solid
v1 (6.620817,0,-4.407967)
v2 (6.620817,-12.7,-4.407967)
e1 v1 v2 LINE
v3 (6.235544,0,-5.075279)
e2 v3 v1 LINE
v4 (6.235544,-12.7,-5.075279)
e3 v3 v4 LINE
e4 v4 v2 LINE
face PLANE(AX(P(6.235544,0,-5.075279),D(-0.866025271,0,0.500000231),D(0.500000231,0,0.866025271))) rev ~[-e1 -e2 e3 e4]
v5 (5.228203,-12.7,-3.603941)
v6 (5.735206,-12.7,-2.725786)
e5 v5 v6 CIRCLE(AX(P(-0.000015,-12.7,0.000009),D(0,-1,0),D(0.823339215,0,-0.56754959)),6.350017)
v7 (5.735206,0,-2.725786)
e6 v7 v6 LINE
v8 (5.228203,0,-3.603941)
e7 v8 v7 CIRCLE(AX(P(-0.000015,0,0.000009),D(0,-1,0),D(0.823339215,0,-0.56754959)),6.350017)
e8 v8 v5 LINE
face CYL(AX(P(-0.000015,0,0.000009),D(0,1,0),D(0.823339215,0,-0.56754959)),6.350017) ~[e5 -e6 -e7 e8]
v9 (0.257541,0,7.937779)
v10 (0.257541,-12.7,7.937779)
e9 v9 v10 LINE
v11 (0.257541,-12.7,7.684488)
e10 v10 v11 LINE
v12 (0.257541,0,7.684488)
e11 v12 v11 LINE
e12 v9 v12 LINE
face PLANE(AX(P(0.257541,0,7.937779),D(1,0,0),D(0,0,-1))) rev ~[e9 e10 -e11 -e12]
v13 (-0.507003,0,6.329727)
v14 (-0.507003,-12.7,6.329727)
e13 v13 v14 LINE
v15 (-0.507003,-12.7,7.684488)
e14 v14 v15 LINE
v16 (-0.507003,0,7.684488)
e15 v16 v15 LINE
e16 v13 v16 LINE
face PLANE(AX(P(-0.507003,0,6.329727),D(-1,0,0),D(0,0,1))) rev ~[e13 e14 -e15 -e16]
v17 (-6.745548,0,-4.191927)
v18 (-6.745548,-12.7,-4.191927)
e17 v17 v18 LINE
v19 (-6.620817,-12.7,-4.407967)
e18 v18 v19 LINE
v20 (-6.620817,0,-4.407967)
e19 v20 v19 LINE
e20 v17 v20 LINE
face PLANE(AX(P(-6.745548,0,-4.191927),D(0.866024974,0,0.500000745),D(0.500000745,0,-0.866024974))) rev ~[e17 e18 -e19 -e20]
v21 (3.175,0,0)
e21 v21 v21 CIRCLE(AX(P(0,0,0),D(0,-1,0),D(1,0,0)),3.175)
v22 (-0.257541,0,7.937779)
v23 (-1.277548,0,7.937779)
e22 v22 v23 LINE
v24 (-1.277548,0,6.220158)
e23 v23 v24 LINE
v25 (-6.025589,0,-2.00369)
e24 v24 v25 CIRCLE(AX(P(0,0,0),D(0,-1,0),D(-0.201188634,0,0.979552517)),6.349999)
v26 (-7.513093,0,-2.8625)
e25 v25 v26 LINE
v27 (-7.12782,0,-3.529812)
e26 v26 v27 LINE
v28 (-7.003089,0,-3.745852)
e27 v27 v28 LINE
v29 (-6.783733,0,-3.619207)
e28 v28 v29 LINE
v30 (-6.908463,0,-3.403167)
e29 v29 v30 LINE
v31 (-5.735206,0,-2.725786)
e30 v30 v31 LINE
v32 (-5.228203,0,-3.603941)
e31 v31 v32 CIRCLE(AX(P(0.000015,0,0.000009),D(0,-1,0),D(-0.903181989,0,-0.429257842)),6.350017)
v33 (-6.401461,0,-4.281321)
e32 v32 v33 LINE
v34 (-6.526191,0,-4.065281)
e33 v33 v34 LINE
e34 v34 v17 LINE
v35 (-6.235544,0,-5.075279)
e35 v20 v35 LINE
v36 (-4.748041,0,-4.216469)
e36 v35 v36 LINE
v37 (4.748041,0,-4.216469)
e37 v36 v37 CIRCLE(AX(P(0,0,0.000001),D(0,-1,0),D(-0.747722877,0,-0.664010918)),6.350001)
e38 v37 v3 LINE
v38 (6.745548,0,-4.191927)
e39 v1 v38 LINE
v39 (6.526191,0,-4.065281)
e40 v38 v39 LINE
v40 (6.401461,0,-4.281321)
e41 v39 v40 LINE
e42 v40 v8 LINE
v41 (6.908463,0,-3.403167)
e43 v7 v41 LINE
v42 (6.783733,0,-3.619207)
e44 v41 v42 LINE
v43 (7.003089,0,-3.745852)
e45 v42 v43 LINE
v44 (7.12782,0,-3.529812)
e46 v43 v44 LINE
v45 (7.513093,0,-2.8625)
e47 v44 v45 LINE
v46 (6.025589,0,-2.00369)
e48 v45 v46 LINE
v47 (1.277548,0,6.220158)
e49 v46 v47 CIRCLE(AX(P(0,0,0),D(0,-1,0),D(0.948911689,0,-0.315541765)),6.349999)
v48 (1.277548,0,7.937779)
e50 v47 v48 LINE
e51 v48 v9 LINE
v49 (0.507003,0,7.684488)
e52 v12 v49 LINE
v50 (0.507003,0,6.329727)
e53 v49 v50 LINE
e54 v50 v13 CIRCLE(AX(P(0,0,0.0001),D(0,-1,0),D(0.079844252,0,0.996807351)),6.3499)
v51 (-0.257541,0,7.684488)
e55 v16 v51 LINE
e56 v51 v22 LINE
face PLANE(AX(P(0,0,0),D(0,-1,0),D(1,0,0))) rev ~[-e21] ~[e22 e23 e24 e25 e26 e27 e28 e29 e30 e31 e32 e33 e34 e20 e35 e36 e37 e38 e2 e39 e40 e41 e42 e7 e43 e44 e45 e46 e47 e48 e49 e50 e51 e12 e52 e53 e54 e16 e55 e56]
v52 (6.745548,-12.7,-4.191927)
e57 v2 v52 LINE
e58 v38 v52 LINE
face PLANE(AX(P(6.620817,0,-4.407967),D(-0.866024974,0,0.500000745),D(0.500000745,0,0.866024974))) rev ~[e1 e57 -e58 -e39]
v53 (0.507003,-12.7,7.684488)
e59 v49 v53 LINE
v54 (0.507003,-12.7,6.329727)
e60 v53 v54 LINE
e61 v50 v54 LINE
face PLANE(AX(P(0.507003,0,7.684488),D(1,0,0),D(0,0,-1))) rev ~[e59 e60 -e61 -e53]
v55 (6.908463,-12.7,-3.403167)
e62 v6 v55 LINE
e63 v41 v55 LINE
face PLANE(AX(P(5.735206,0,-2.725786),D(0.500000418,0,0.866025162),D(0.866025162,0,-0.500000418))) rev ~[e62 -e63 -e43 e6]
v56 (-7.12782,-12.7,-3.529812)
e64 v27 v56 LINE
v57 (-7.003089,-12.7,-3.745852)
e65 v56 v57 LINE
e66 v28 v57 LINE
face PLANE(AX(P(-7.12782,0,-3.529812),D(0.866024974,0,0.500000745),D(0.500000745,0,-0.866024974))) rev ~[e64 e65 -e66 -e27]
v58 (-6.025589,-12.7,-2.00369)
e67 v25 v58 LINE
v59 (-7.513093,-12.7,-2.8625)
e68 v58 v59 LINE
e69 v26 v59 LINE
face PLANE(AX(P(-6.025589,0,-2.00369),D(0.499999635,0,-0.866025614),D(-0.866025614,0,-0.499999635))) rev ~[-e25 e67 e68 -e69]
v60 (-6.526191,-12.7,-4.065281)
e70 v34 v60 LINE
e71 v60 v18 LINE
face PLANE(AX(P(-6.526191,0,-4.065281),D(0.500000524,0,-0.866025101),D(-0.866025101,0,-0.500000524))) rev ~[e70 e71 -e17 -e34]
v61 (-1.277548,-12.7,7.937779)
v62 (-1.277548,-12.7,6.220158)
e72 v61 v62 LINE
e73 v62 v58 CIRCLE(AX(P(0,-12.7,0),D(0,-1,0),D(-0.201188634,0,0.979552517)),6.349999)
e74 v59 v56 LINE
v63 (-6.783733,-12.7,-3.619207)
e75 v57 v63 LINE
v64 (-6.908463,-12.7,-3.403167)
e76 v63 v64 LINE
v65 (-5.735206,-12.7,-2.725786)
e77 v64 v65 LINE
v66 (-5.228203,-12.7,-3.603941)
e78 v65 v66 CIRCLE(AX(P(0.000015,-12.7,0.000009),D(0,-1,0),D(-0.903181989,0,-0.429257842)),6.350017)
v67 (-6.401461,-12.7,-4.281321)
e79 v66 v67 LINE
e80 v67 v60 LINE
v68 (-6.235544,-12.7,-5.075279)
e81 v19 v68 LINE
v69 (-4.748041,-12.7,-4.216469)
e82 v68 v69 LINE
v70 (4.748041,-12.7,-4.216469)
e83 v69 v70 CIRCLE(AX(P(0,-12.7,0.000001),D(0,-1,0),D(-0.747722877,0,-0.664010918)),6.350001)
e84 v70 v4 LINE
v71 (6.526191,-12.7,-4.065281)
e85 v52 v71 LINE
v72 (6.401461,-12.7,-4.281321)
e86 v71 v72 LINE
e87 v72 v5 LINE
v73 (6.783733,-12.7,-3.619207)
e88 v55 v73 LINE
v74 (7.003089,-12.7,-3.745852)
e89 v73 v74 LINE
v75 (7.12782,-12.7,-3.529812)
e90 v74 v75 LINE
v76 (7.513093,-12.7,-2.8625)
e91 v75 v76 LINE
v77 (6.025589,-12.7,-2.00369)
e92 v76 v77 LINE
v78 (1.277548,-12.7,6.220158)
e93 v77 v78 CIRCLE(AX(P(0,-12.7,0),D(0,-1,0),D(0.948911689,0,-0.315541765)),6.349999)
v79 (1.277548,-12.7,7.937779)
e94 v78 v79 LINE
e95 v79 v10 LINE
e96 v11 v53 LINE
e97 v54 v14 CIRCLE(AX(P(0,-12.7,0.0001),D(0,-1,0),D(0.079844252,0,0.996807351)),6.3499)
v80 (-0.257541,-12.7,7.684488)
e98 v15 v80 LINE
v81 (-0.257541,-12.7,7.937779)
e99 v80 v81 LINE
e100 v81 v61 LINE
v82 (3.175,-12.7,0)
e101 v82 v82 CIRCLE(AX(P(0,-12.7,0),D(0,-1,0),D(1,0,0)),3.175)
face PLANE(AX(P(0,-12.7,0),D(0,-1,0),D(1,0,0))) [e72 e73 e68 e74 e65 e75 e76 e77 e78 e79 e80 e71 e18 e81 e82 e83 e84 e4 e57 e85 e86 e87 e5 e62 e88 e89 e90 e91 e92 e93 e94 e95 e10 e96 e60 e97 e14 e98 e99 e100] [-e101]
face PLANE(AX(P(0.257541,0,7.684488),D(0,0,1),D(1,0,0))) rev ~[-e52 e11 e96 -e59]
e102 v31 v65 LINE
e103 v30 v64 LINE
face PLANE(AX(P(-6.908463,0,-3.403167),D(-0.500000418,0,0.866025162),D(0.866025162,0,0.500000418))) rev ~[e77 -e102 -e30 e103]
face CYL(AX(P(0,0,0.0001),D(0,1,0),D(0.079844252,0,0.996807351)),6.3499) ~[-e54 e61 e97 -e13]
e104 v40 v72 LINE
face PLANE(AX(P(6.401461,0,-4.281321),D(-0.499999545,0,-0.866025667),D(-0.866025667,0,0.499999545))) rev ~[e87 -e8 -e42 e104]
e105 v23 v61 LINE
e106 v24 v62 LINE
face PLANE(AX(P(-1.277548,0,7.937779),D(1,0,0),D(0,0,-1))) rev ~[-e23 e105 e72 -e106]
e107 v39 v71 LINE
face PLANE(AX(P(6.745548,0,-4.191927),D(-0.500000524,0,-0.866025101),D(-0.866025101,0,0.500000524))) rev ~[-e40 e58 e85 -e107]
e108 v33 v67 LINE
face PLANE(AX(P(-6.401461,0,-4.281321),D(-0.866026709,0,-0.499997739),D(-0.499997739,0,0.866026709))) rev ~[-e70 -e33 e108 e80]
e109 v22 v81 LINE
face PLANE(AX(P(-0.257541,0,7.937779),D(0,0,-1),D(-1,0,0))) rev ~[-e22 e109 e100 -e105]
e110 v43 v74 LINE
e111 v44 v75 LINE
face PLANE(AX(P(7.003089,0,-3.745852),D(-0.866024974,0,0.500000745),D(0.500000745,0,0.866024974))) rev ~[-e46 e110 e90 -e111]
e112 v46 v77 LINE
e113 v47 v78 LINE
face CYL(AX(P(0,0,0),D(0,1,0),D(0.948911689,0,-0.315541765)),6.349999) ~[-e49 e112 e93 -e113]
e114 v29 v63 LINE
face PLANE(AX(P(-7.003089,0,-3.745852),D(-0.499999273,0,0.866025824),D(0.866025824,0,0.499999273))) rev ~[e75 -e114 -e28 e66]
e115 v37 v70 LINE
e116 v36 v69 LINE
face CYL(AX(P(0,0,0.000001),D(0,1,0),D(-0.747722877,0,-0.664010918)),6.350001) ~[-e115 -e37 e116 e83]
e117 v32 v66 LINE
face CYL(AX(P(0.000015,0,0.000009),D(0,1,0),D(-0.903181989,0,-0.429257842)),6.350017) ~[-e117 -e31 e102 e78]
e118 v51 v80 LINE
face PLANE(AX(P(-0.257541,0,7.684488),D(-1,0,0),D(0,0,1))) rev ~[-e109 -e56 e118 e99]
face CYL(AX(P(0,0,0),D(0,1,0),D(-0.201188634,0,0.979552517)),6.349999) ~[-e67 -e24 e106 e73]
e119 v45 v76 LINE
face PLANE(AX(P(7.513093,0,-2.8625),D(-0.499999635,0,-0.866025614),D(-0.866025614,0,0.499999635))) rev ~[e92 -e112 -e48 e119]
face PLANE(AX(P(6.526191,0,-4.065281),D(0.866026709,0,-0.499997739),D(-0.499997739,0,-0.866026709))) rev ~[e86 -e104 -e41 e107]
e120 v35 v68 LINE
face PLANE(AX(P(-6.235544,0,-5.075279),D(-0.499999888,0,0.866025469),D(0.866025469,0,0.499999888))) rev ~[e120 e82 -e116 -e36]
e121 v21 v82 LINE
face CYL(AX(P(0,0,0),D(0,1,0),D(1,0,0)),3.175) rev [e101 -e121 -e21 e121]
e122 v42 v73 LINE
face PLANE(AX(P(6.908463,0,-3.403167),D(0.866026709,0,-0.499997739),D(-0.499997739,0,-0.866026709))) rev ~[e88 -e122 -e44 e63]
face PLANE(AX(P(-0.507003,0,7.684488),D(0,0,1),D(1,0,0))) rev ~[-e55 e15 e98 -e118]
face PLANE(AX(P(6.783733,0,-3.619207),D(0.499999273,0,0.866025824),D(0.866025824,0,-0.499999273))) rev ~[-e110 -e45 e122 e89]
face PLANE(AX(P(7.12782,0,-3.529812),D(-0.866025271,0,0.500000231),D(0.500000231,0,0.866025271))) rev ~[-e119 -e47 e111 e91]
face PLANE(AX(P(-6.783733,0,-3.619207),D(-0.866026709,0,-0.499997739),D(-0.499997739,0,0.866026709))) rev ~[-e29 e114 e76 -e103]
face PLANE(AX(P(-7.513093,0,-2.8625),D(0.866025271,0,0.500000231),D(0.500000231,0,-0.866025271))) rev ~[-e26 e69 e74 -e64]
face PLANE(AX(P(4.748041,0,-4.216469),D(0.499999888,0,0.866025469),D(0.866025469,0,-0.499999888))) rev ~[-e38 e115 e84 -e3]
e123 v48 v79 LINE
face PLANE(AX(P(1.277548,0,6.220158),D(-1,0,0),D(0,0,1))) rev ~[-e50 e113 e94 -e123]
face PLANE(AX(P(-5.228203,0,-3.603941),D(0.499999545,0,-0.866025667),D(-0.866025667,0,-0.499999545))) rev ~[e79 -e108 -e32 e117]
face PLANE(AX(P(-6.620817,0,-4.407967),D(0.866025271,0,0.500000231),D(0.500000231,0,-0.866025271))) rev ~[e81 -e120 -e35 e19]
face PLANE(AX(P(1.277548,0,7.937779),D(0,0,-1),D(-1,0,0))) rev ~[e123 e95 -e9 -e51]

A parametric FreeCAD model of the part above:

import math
import FreeCAD as App
import Part
import Sketcher
Q = App.Units.Quantity

doc = App.newDocument("Part")
body = doc.addObject("PartDesign::Body", "Body")

# Sketch on XZ plane
sketch1 = body.newObject("Sketcher::SketchObject", "Sketch")
sketch1.AttachmentSupport = (doc.getObject("XZ_Plane"), [""])
sketch1.MapMode = "FlatFace"
sketch1.addGeometry([
    Part.LineSegment(App.Vector(0.507003, 7.684488, 0), App.Vector(0.507003, 6.329727, 0)),  # 0
    Part.ArcOfCircle(Part.Circle(App.Vector(0, 0.0001, 0), App.Vector(0, 0, 1), 6.3499), math.radians(85.420387), math.radians(94.579613)),  # 1
    Part.LineSegment(App.Vector(-0.507003, 6.329727, 0), App.Vector(-0.507003, 7.684488, 0)),  # 2
    Part.LineSegment(App.Vector(-0.507003, 7.684488, 0), App.Vector(-0.257541, 7.684488, 0)),  # 3
    Part.LineSegment(App.Vector(-0.257541, 7.684488, 0), App.Vector(-0.257541, 7.937779, 0)),  # 4
    Part.LineSegment(App.Vector(-0.257541, 7.937779, 0), App.Vector(-1.277548, 7.937779, 0)),  # 5
    Part.LineSegment(App.Vector(-1.277548, 7.937779, 0), App.Vector(-1.277548, 6.220158, 0)),  # 6
    Part.ArcOfCircle(Part.Circle(App.Vector(0, 0, 0), App.Vector(0, 0, 1), 6.349999), math.radians(101.606476), math.radians(198.393523)),  # 7
    Part.LineSegment(App.Vector(-6.025589, -2.00369, 0), App.Vector(-7.513093, -2.8625, 0)),  # 8
    Part.LineSegment(App.Vector(-7.513093, -2.8625, 0), App.Vector(-7.12782, -3.529812, 0)),  # 9
    Part.LineSegment(App.Vector(-7.12782, -3.529812, 0), App.Vector(-7.003089, -3.745852, 0)),  # 10
    Part.LineSegment(App.Vector(-7.003089, -3.745852, 0), App.Vector(-6.783733, -3.619207, 0)),  # 11
    Part.LineSegment(App.Vector(-6.783733, -3.619207, 0), App.Vector(-6.908463, -3.403167, 0)),  # 12
    Part.LineSegment(App.Vector(-6.908463, -3.403167, 0), App.Vector(-5.735206, -2.725786, 0)),  # 13
    Part.ArcOfCircle(Part.Circle(App.Vector(0.000015, 0.000009, 0), App.Vector(0, 0, 1), 6.350017), math.radians(-154.57953), math.radians(-145.420473)),  # 14
    Part.LineSegment(App.Vector(-5.228203, -3.603941, 0), App.Vector(-6.401461, -4.281321, 0)),  # 15
    Part.LineSegment(App.Vector(-6.401461, -4.281321, 0), App.Vector(-6.526191, -4.065281, 0)),  # 16
    Part.LineSegment(App.Vector(-6.526191, -4.065281, 0), App.Vector(-6.745548, -4.191927, 0)),  # 17
    Part.LineSegment(App.Vector(-6.745548, -4.191927, 0), App.Vector(-6.620817, -4.407967, 0)),  # 18
    Part.LineSegment(App.Vector(-6.620817, -4.407967, 0), App.Vector(-6.235544, -5.075279, 0)),  # 19
    Part.LineSegment(App.Vector(-6.235544, -5.075279, 0), App.Vector(-4.748041, -4.216469, 0)),  # 20
    Part.ArcOfCircle(Part.Circle(App.Vector(0, 0.000001, 0), App.Vector(0, 0, 1), 6.350001), math.radians(-138.39351), math.radians(-41.60649)),  # 21
    Part.LineSegment(App.Vector(4.748041, -4.216469, 0), App.Vector(6.235544, -5.075279, 0)),  # 22
    Part.LineSegment(App.Vector(6.235544, -5.075279, 0), App.Vector(6.620817, -4.407967, 0)),  # 23
    Part.LineSegment(App.Vector(6.620817, -4.407967, 0), App.Vector(6.745548, -4.191927, 0)),  # 24
    Part.LineSegment(App.Vector(6.745548, -4.191927, 0), App.Vector(6.526191, -4.065281, 0)),  # 25
    Part.LineSegment(App.Vector(6.526191, -4.065281, 0), App.Vector(6.401461, -4.281321, 0)),  # 26
    Part.LineSegment(App.Vector(6.401461, -4.281321, 0), App.Vector(5.228203, -3.603941, 0)),  # 27
    Part.ArcOfCircle(Part.Circle(App.Vector(-0.000015, 0.000009, 0), App.Vector(0, 0, 1), 6.350017), math.radians(-34.579527), math.radians(-25.42047)),  # 28
    Part.LineSegment(App.Vector(5.735206, -2.725786, 0), App.Vector(6.908463, -3.403167, 0)),  # 29
    Part.LineSegment(App.Vector(6.908463, -3.403167, 0), App.Vector(6.783733, -3.619207, 0)),  # 30
    Part.LineSegment(App.Vector(6.783733, -3.619207, 0), App.Vector(7.003089, -3.745852, 0)),  # 31
    Part.LineSegment(App.Vector(7.003089, -3.745852, 0), App.Vector(7.12782, -3.529812, 0)),  # 32
    Part.LineSegment(App.Vector(7.12782, -3.529812, 0), App.Vector(7.513093, -2.8625, 0)),  # 33
    Part.LineSegment(App.Vector(7.513093, -2.8625, 0), App.Vector(6.025589, -2.00369, 0)),  # 34
    Part.ArcOfCircle(Part.Circle(App.Vector(0, 0, 0), App.Vector(0, 0, 1), 6.349999), math.radians(-18.393523), math.radians(78.393524)),  # 35
    Part.LineSegment(App.Vector(1.277548, 6.220158, 0), App.Vector(1.277548, 7.937779, 0)),  # 36
    Part.LineSegment(App.Vector(1.277548, 7.937779, 0), App.Vector(0.257541, 7.937779, 0)),  # 37
    Part.LineSegment(App.Vector(0.257541, 7.937779, 0), App.Vector(0.257541, 7.684488, 0)),  # 38
    Part.LineSegment(App.Vector(0.257541, 7.684488, 0), App.Vector(0.507003, 7.684488, 0)),  # 39
    Part.Circle(App.Vector(0, 0, 0), App.Vector(0, 0, 1), 3.175),  # 40
], False)
sketch1.addConstraint([
    Sketcher.Constraint("Coincident", 0, 2, 1, 1),
    Sketcher.Constraint("Coincident", 1, 2, 2, 1),
    Sketcher.Constraint("Coincident", 2, 2, 3, 1),
    Sketcher.Constraint("Coincident", 3, 2, 4, 1),
    Sketcher.Constraint("Coincident", 4, 2, 5, 1),
    Sketcher.Constraint("Coincident", 5, 2, 6, 1),
    Sketcher.Constraint("Coincident", 6, 2, 7, 1),
    Sketcher.Constraint("Coincident", 7, 2, 8, 1),
    Sketcher.Constraint("Coincident", 8, 2, 9, 1),
    Sketcher.Constraint("Coincident", 9, 2, 10, 1),
    Sketcher.Constraint("Coincident", 10, 2, 11, 1),
    Sketcher.Constraint("Coincident", 11, 2, 12, 1),
    Sketcher.Constraint("Coincident", 12, 2, 13, 1),
    Sketcher.Constraint("Coincident", 13, 2, 14, 1),
    Sketcher.Constraint("Coincident", 14, 2, 15, 1),
    Sketcher.Constraint("Coincident", 15, 2, 16, 1),
    Sketcher.Constraint("Coincident", 16, 2, 17, 1),
    Sketcher.Constraint("Coincident", 17, 2, 18, 1),
    Sketcher.Constraint("Coincident", 18, 2, 19, 1),
    Sketcher.Constraint("Coincident", 19, 2, 20, 1),
    Sketcher.Constraint("Coincident", 20, 2, 21, 1),
    Sketcher.Constraint("Coincident", 21, 2, 22, 1),
    Sketcher.Constraint("Coincident", 22, 2, 23, 1),
    Sketcher.Constraint("Coincident", 23, 2, 24, 1),
    Sketcher.Constraint("Coincident", 24, 2, 25, 1),
    Sketcher.Constraint("Coincident", 25, 2, 26, 1),
    Sketcher.Constraint("Coincident", 26, 2, 27, 1),
    Sketcher.Constraint("Coincident", 27, 2, 28, 1),
    Sketcher.Constraint("Coincident", 28, 2, 29, 1),
    Sketcher.Constraint("Coincident", 29, 2, 30, 1),
    Sketcher.Constraint("Coincident", 30, 2, 31, 1),
    Sketcher.Constraint("Coincident", 31, 2, 32, 1),
    Sketcher.Constraint("Coincident", 32, 2, 33, 1),
    Sketcher.Constraint("Coincident", 33, 2, 34, 1),
    Sketcher.Constraint("Coincident", 34, 2, 35, 1),
    Sketcher.Constraint("Coincident", 35, 2, 36, 1),
    Sketcher.Constraint("Coincident", 36, 2, 37, 1),
    Sketcher.Constraint("Coincident", 37, 2, 38, 1),
    Sketcher.Constraint("Coincident", 38, 2, 39, 1),
    Sketcher.Constraint("Coincident", 39, 2, 0, 1),
    Sketcher.Constraint("Vertical", 0),
    Sketcher.Constraint("Vertical", 2),
    Sketcher.Constraint("Horizontal", 3),
    Sketcher.Constraint("Vertical", 4),
    Sketcher.Constraint("Horizontal", 5),
    Sketcher.Constraint("Vertical", 6),
    Sketcher.Constraint("Vertical", 36),
    Sketcher.Constraint("Horizontal", 37),
    Sketcher.Constraint("Vertical", 38),
    Sketcher.Constraint("Horizontal", 39),
    Sketcher.Constraint("Coincident", 7, 3, -1, 1),
    Sketcher.Constraint("Coincident", 21, 3, -1, 1),
    Sketcher.Constraint("Coincident", 35, 3, -1, 1),
    Sketcher.Constraint("Coincident", 40, 3, -1, 1),
    Sketcher.Constraint("Equal", 7, 21),
    Sketcher.Constraint("Equal", 14, 28),
    Sketcher.Constraint("Equal", 21, 35),
    Sketcher.Constraint("Symmetric", 14, 3, 28, 3, -2),
    Sketcher.Constraint("Symmetric", 0, 2, 1, 2, -2),
    Sketcher.Constraint("Symmetric", 19, 2, 22, 2, -2),
    Sketcher.Constraint("Symmetric", 18, 2, 23, 2, -2),
    Sketcher.Constraint("Symmetric", 17, 2, 24, 2, -2),
    Sketcher.Constraint("Symmetric", 16, 2, 25, 2, -2),
    Sketcher.Constraint("Symmetric", 15, 2, 26, 2, -2),
    Sketcher.Constraint("Symmetric", 12, 2, 29, 2, -2),
    Sketcher.Constraint("Symmetric", 11, 2, 30, 2, -2),
    Sketcher.Constraint("Symmetric", 10, 2, 31, 2, -2),
    Sketcher.Constraint("Symmetric", 9, 2, 32, 2, -2),
    Sketcher.Constraint("Symmetric", 8, 2, 33, 2, -2),
    Sketcher.Constraint("Symmetric", 5, 2, 36, 2, -2),
    Sketcher.Constraint("Symmetric", 3, 2, 38, 2, -2),
    Sketcher.Constraint("Perpendicular", 8, 9),
    Sketcher.Constraint("Parallel", 9, 10),
    Sketcher.Constraint("Perpendicular", 10, 11),
    Sketcher.Constraint("Perpendicular", 11, 12),
    Sketcher.Constraint("Parallel", 11, 13),
    Sketcher.Constraint("Parallel", 13, 15),
    Sketcher.Constraint("Parallel", 12, 16),
    Sketcher.Constraint("Parallel", 15, 17),
    Sketcher.Constraint("Perpendicular", 17, 18),
    Sketcher.Constraint("Parallel", 18, 19),
    Sketcher.Constraint("Perpendicular", 19, 20),
    Sketcher.Constraint("Perpendicular", 22, 23),
    Sketcher.Constraint("Parallel", 25, 27),
    Sketcher.Constraint("Parallel", 27, 29),
    Sketcher.Constraint("Perpendicular", 33, 34),
    Sketcher.Constraint("Equal", 10, 12),
    Sketcher.Constraint("Equal", 13, 15),
    Sketcher.Constraint("Equal", 12, 16),
    Sketcher.Constraint("Equal", 11, 17),
    Sketcher.Constraint("Equal", 16, 18),
    Sketcher.Constraint("Equal", 9, 19),
    Sketcher.Constraint("Equal", 8, 20),
    Sketcher.Constraint("Diameter", 40, Q("0.25 in")),
    Sketcher.Constraint("Radius", 7, Q("0.25 in")),
    Sketcher.Constraint("Angle", 9, Q("-59.999985 deg")),
    Sketcher.Constraint("Radius", 1, Q("6.3499 mm")),
    Sketcher.Constraint("Radius", 14, Q("6.350017 mm")),
    Sketcher.Constraint("DistanceX", 3, 2, 0, 2, Q("0.0301002 in")),
    Sketcher.Constraint("DistanceX", 3, 1, 3, 2, Q("0.249462 mm")),
    Sketcher.Constraint("DistanceY", 0, 2, 0, 1, Q("1.354761 mm")),
    Sketcher.Constraint("DistanceY", 4, 1, 4, 2, Q("0.253291 mm")),
    Sketcher.Constraint("DistanceY", 6, 2, 6, 1, Q("1.717621 mm")),
    Sketcher.Constraint("DistanceY", -1, 1, 1, 3, Q("0.0001 mm")),
    Sketcher.Constraint("DistanceY", 8, 2, -1, 1, Q("2.8625 mm")),
    Sketcher.Constraint("DistanceY", 7, 2, 28, 3, Q("2.003699 mm")),
    Sketcher.Constraint("DistanceX", 10, 2, 7, 2, Q("0.9775 mm")),
    Sketcher.Constraint("DistanceX", 12, 2, 15, 2, Q("0.507002 mm")),
    Sketcher.Constraint("DistanceX", 10, 2, 16, 2, Q("0.476898 mm")),
    Sketcher.Constraint("DistanceY", 19, 2, 16, 2, Q("1.009998 mm")),
    Sketcher.Constraint("DistanceY", 23, 2, 21, 2, Q("0.191498 mm")),
])
pad1 = body.newObject("PartDesign::Pad", "Pad")
pad1.Profile = sketch1
pad1.Length = Q("0.5 in")

doc.recompute()
